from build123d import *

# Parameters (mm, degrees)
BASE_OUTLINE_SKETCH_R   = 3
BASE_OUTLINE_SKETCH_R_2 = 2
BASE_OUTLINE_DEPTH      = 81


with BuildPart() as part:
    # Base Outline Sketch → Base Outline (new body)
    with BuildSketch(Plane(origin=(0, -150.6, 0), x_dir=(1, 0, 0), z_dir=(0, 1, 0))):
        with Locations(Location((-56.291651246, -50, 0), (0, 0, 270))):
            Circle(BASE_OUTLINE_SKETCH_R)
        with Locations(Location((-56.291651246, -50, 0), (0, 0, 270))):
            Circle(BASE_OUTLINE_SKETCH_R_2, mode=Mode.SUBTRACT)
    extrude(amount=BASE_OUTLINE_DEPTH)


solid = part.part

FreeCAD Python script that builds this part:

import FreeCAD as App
import Part
import Sketcher
from FreeCAD import Vector

doc = App.newDocument("Part")
body = doc.addObject("PartDesign::Body", "Body")

# Sketch on XZ plane
sketch1 = body.newObject("Sketcher::SketchObject", "Sketch")
sketch1.AttachmentSupport = (doc.getObject("XZ_Plane"), [""])
sketch1.MapMode = "FlatFace"
sketch1.AttachmentOffset = App.Placement(Vector(0, 0, 150.6), App.Rotation())
sketch1.addGeometry(Part.Circle(Vector(-56.3, 50, 0), Vector(0, 0, 1), 3), False)
sketch1.addGeometry(Part.Circle(Vector(-56.3, 50, 0), Vector(0, 0, 1), 2), False)
sketch1.addConstraint(Sketcher.Constraint("Coincident", 1, 3, 0, 3))
sketch1.addConstraint(Sketcher.Constraint("Diameter", 0, 6.0))
sketch1.addConstraint(Sketcher.Constraint("Diameter", 1, 4.0))
sketch1.addConstraint(Sketcher.Constraint("DistanceY", -1, 1, 0, 3, 50.0))
sketch1.addConstraint(Sketcher.Constraint("DistanceX", 0, 3, -1, 1, 56.291651))
pad1 = body.newObject("PartDesign::Pad", "Pad")
pad1.Profile = sketch1
pad1.Length = 81
pad1.Reversed = True

doc.recompute()
